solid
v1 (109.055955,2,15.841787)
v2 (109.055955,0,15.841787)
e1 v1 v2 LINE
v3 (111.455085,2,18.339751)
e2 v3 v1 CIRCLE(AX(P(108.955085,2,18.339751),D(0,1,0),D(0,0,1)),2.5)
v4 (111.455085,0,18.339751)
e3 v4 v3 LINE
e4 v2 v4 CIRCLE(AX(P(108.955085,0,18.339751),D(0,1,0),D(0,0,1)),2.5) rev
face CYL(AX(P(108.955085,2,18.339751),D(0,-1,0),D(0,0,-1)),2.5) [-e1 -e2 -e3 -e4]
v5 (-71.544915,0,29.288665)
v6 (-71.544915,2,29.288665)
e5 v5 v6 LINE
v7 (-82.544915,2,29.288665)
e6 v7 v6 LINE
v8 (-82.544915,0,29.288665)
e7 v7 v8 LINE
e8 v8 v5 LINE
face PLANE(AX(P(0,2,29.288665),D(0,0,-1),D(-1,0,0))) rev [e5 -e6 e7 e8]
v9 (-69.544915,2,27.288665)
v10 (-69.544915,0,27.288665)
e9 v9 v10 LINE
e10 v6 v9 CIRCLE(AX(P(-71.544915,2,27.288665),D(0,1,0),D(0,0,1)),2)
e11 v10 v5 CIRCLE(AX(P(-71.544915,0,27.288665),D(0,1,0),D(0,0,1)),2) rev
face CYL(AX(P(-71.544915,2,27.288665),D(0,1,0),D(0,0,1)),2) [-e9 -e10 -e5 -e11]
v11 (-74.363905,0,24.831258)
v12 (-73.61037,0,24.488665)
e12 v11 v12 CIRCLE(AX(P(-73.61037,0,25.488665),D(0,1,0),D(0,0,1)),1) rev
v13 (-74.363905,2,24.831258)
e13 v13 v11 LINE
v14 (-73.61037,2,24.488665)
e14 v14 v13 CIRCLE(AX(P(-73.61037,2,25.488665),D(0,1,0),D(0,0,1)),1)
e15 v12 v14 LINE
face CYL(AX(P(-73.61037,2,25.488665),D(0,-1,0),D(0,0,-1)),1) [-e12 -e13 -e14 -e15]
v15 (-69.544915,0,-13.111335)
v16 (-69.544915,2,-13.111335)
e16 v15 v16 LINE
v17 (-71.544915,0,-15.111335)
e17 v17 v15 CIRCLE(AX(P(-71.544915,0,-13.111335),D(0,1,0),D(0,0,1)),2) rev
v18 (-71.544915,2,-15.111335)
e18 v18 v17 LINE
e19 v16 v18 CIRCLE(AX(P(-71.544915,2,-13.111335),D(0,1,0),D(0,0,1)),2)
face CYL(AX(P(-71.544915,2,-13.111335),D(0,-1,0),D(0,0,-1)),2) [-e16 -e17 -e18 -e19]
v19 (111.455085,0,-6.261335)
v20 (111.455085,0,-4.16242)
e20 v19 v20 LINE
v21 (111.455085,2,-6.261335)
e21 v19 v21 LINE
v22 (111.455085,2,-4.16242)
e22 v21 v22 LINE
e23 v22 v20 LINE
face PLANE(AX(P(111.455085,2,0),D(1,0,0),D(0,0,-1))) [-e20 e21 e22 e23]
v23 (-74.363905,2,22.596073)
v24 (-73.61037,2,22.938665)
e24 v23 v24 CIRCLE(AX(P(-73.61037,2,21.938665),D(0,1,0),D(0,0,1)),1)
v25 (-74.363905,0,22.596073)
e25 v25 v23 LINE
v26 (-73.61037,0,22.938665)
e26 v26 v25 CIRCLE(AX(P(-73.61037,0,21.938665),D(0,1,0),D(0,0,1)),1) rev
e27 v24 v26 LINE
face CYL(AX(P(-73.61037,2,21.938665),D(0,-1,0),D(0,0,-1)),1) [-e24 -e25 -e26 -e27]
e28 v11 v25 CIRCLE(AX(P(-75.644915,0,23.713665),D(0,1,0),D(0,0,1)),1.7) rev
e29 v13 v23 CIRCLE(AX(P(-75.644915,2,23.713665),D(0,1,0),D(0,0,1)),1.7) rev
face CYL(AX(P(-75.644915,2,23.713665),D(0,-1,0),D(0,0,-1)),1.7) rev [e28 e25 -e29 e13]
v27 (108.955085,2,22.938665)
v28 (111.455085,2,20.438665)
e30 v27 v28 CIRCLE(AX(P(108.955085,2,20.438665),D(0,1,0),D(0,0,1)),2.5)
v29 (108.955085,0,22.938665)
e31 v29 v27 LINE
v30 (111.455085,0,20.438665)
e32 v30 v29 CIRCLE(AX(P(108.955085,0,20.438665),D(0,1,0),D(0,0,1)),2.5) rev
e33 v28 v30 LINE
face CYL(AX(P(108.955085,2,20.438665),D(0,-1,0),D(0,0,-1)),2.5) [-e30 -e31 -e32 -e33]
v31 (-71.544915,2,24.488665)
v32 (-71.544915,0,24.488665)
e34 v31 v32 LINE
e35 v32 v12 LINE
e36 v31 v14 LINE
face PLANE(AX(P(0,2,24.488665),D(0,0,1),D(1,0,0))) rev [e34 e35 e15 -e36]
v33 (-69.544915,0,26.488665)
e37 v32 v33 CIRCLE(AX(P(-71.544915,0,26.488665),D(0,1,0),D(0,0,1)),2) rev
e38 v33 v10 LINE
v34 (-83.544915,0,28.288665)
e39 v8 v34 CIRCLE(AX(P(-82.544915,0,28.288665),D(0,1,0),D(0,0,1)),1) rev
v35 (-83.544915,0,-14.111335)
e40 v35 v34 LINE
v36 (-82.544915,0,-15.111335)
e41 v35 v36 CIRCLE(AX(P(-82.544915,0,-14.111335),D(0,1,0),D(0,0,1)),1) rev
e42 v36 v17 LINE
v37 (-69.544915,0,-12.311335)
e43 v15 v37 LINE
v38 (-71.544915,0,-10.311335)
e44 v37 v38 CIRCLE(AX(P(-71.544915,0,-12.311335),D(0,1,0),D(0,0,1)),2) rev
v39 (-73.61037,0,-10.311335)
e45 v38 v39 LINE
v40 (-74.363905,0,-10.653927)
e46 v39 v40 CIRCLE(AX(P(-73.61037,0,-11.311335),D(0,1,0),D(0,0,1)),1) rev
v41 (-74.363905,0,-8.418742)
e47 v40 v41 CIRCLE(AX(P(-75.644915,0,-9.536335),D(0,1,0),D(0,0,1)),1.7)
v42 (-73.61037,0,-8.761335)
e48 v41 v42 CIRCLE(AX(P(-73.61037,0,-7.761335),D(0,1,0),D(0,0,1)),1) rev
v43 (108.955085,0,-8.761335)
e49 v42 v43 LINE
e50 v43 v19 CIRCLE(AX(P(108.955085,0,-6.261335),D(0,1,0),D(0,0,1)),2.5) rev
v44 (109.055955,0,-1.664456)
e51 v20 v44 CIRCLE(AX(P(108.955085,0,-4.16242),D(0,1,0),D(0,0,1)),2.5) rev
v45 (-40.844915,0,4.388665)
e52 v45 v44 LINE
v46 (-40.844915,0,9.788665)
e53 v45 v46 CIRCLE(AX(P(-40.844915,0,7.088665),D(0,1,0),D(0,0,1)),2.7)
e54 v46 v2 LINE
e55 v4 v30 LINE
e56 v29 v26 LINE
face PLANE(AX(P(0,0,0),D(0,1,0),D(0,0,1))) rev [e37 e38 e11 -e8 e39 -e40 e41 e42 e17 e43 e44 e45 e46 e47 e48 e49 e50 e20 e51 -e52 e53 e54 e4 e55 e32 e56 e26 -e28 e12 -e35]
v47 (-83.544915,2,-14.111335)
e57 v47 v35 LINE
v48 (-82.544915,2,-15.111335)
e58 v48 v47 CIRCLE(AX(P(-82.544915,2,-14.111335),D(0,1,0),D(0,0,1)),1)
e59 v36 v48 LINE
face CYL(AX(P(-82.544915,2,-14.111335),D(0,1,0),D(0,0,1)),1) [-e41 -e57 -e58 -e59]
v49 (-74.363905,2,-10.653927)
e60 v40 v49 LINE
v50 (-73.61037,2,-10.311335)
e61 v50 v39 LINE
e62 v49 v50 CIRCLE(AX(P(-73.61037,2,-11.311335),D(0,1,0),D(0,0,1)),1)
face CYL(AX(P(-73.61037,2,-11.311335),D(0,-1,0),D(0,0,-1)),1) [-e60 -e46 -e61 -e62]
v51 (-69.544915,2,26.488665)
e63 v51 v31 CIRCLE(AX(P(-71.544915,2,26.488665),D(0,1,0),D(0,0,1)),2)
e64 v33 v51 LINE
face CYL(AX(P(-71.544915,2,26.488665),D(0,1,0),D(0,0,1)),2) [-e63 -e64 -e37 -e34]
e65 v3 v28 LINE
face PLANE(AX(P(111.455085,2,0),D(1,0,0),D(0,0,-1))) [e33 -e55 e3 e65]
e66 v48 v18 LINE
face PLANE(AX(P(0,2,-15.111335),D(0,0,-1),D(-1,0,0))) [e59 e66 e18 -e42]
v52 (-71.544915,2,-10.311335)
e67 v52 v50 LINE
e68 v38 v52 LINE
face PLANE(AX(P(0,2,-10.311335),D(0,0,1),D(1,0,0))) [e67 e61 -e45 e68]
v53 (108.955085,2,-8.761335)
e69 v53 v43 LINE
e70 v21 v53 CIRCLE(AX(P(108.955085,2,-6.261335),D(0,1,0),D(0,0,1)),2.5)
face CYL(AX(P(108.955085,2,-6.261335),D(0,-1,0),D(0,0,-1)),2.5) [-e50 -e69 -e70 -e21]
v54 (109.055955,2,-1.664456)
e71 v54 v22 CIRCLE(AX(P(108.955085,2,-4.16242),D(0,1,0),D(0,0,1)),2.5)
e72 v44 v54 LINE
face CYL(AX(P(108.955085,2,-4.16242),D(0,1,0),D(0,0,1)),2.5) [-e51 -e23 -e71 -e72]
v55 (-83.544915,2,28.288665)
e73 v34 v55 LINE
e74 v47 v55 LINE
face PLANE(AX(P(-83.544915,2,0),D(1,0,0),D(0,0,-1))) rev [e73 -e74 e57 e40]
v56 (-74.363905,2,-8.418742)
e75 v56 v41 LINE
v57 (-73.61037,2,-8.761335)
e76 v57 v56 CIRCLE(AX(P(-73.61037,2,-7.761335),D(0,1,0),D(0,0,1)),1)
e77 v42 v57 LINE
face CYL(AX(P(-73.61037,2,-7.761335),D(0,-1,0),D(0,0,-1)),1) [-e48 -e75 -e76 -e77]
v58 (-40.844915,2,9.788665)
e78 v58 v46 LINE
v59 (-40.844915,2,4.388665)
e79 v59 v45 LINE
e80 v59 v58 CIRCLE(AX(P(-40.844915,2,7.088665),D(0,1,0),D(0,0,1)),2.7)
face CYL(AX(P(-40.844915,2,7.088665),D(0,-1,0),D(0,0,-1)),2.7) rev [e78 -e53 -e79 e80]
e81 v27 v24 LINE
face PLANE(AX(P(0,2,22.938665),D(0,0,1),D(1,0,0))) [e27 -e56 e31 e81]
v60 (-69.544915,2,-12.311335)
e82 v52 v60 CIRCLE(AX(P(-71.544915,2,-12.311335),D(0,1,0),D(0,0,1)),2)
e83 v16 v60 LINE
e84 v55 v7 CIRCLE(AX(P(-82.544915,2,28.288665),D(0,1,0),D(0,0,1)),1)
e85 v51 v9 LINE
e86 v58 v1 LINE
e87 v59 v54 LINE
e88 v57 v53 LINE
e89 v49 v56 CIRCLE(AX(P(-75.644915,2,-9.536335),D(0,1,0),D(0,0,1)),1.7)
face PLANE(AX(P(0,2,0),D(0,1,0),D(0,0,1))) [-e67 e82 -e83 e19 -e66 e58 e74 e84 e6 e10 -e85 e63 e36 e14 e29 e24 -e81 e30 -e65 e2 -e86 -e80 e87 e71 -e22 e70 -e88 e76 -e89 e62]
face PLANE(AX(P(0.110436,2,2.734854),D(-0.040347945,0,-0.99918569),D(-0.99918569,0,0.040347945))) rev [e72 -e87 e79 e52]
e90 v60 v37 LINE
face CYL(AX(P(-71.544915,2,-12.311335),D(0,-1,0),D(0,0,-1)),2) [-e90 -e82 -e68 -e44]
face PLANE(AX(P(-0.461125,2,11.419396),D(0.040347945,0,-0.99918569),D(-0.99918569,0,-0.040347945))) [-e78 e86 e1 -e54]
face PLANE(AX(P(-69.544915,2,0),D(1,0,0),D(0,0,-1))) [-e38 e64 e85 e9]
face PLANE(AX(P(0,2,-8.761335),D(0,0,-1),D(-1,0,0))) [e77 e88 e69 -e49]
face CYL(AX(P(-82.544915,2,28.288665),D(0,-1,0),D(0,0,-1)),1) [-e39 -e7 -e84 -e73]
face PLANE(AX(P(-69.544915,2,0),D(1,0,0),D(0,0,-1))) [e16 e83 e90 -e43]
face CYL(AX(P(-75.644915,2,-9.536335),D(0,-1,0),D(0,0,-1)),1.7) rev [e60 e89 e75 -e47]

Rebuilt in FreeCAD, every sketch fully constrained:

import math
import FreeCAD as App
import Part
import Sketcher


def edges_at(feature, points):
    """Names of the edges that pass closest to the given points."""
    edges = feature.Shape.Edges
    near = lambda p: min(range(len(edges)), key=lambda i: edges[i].distToShape(Part.Vertex(*p))[0])
    return sorted({f"Edge{near(p) + 1}" for p in points})

doc = App.newDocument("Part")
body = doc.addObject("PartDesign::Body", "Body")

# Sketch on XZ plane
sketch1 = doc.addObject("Sketcher::SketchObject", "Sketch")
body.addObject(sketch1)
sketch1.AttachmentSupport = (doc.XZ_Plane, [""])
sketch1.MapMode = "FlatFace"
sketch1.addGeometry([
    Part.ArcOfCircle(Part.Circle(App.Vector(-40.8, 7.1, 0), App.Vector(0, 0, 1), 2.7), math.radians(90), math.radians(270)),  # 0
    Part.LineSegment(App.Vector(-40.8, 4.4, 0), App.Vector(111.5, -1.8, 0)),  # 1
    Part.LineSegment(App.Vector(111.5, -1.8, 0), App.Vector(111.5, -8.8, 0)),  # 2
    Part.LineSegment(App.Vector(111.5, -8.8, 0), App.Vector(-74.1, -8.8, 0)),  # 3
    Part.ArcOfCircle(Part.Circle(App.Vector(-75.6, -9.5, 0), App.Vector(0, 0, 1), 1.7), math.radians(27), math.radians(333)),  # 4
    Part.LineSegment(App.Vector(-74.1, -10.3, 0), App.Vector(-69.5, -10.3, 0)),  # 5
    Part.LineSegment(App.Vector(-69.5, -10.3, 0), App.Vector(-69.5, -15.1, 0)),  # 6
    Part.LineSegment(App.Vector(-69.5, -15.1, 0), App.Vector(-83.5, -15.1, 0)),  # 7
    Part.LineSegment(App.Vector(-83.5, -15.1, 0), App.Vector(-83.5, 29.3, 0)),  # 8
    Part.LineSegment(App.Vector(-83.5, 29.3, 0), App.Vector(-69.5, 29.3, 0)),  # 9
    Part.LineSegment(App.Vector(-69.5, 29.3, 0), App.Vector(-69.5, 24.5, 0)),  # 10
    Part.LineSegment(App.Vector(-69.5, 24.5, 0), App.Vector(-74.1, 24.5, 0)),  # 11
    Part.ArcOfCircle(Part.Circle(App.Vector(-75.6, 23.7, 0), App.Vector(0, 0, 1), 1.7), math.radians(27), math.radians(333)),  # 12
    Part.LineSegment(App.Vector(-74.1, 22.9, 0), App.Vector(111.5, 22.9, 0)),  # 13
    Part.LineSegment(App.Vector(111.5, 22.9, 0), App.Vector(111.5, 15.9, 0)),  # 14
    Part.LineSegment(App.Vector(111.5, 15.9, 0), App.Vector(-40.8, 9.8, 0)),  # 15
], False)
sketch1.addConstraint([
    Sketcher.Constraint("Coincident", 0, 2, 1, 1),
    Sketcher.Constraint("Coincident", 1, 2, 2, 1),
    Sketcher.Constraint("Coincident", 2, 2, 3, 1),
    Sketcher.Constraint("Coincident", 3, 2, 4, 1),
    Sketcher.Constraint("Coincident", 4, 2, 5, 1),
    Sketcher.Constraint("Coincident", 5, 2, 6, 1),
    Sketcher.Constraint("Coincident", 6, 2, 7, 1),
    Sketcher.Constraint("Coincident", 7, 2, 8, 1),
    Sketcher.Constraint("Coincident", 8, 2, 9, 1),
    Sketcher.Constraint("Coincident", 9, 2, 10, 1),
    Sketcher.Constraint("Coincident", 10, 2, 11, 1),
    Sketcher.Constraint("Coincident", 11, 2, 12, 1),
    Sketcher.Constraint("Coincident", 12, 2, 13, 1),
    Sketcher.Constraint("Coincident", 13, 2, 14, 1),
    Sketcher.Constraint("Coincident", 14, 2, 15, 1),
    Sketcher.Constraint("Coincident", 15, 2, 0, 1),
    Sketcher.Constraint("Vertical", 2),
    Sketcher.Constraint("Horizontal", 3),
    Sketcher.Constraint("Horizontal", 5),
    Sketcher.Constraint("Vertical", 6),
    Sketcher.Constraint("Horizontal", 7),
    Sketcher.Constraint("Vertical", 8),
    Sketcher.Constraint("Horizontal", 9),
    Sketcher.Constraint("Vertical", 10),
    Sketcher.Constraint("Horizontal", 11),
    Sketcher.Constraint("Horizontal", 13),
    Sketcher.Constraint("Vertical", 14),
    Sketcher.Constraint("Equal", 4, 12),
    Sketcher.Constraint("Vertical", 4, 3, 12, 3),
    Sketcher.Constraint("Vertical", 3, 2, 4, 2),
    Sketcher.Constraint("Vertical", 6, 2, 9, 2),
    Sketcher.Constraint("Vertical", 4, 2, 11, 2),
    Sketcher.Constraint("Vertical", 11, 2, 12, 2),
    Sketcher.Constraint("Vertical", 2, 2, 13, 2),
    Sketcher.Constraint("Vertical", 0, 2, 15, 2),
    Sketcher.Constraint("Equal", 6, 10),
    Sketcher.Constraint("Equal", 2, 14),
    Sketcher.Constraint("Equal", 1, 15),
    Sketcher.Constraint("Radius", 0, 2.7),
    Sketcher.Constraint("Radius", 4, 1.7),
    Sketcher.Constraint("DistanceX", 7, 2, 7, 1, 14.0),
    Sketcher.Constraint("DistanceY", 2, 2, 2, 1, 7.0),
    Sketcher.Constraint("DistanceY", 6, 2, 6, 1, 4.8),
    Sketcher.Constraint("DistanceY", 8, 1, 8, 2, 44.4),
    Sketcher.Constraint("DistanceX", 10, 2, 13, 2, 181.0),
    Sketcher.Constraint("DistanceX", 4, 3, 0, 3, 34.8),
    Sketcher.Constraint("DistanceX", 4, 3, 0, 2, 34.8),
    Sketcher.Constraint("DistanceX", 0, 2, 1, 2, 152.3),
    Sketcher.Constraint("DistanceY", 1, 2, 13, 2, 24.7),
    Sketcher.Constraint("DistanceX", 0, 3, -1, 1, 40.844915),
    Sketcher.Constraint("DistanceY", -1, 1, 0, 3, 7.088665),
])
pad1 = doc.addObject("PartDesign::Pad", "Pad")
body.addObject(pad1)
pad1.Profile = sketch1
pad1.Length = 2
pad1.Reversed = True
doc.recompute()

fillet = doc.addObject("PartDesign::Fillet", "Fillet")
body.addObject(fillet)
fillet.Base = (pad1, edges_at(pad1, [
    (-74.132, 1, 22.939),
    (-74.132, 1, 24.489),
    (-83.545, 1, 29.289),
    (-83.545, 1, -15.111),
    (-74.132, 1, -10.311),
    (-74.132, 1, -8.761),
]))
fillet.Radius = 1
doc.recompute()

fillet2 = doc.addObject("PartDesign::Fillet", "Fillet001")
body.addObject(fillet2)
fillet2.Base = (fillet, edges_at(fillet, [
    (-69.545, 1, 24.489),
    (-69.545, 1, 29.289),
    (-69.545, 1, -15.111),
    (-69.545, 1, -10.311),
]))
fillet2.Radius = 2
doc.recompute()

fillet3 = doc.addObject("PartDesign::Fillet", "Fillet002")
body.addObject(fillet3)
fillet3.Base = (fillet2, edges_at(fillet2, [
    (111.455, 1, 15.939),
    (111.455, 1, 22.939),
    (111.455, 1, -8.761),
    (111.455, 1, -1.761),
]))
fillet3.Radius = 2.5

doc.recompute()
